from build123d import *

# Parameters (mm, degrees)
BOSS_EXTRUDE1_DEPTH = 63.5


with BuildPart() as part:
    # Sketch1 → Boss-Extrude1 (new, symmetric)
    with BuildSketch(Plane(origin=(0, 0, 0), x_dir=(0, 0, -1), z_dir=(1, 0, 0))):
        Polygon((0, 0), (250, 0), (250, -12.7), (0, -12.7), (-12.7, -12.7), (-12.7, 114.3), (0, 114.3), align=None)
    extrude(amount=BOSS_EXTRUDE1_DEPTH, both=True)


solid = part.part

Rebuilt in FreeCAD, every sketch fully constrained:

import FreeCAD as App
import Part
import Sketcher

V = App.Vector
Q = App.Units.Quantity

doc = App.newDocument("Part")
body = doc.addObject("PartDesign::Body", "Body")

sketch1 = doc.addObject("Sketcher::SketchObject", "Sketch")
body.addObject(sketch1)
sketch1.AttachmentSupport = (doc.YZ_Plane, [""])
sketch1.MapMode = "FlatFace"
sketch1.addGeometry(Part.LineSegment(V(0, -250, 0), V(0, 0, 0)), False)
sketch1.addGeometry(Part.LineSegment(V(0, 0, 0), V(114, 0, 0)), False)
sketch1.addGeometry(Part.LineSegment(V(114, 0, 0), V(114, 13, 0)), False)
sketch1.addGeometry(Part.LineSegment(V(114, 13, 0), V(-13, 13, 0)), False)
sketch1.addGeometry(Part.LineSegment(V(-13, 13, 0), V(-13, -250, 0)), False)
sketch1.addGeometry(Part.LineSegment(V(-13, -250, 0), V(0, -250, 0)), False)
sketch1.addConstraint(Sketcher.Constraint("Coincident", 0, 2, 1, 1))
sketch1.addConstraint(Sketcher.Constraint("Coincident", 1, 2, 2, 1))
sketch1.addConstraint(Sketcher.Constraint("Coincident", 2, 2, 3, 1))
sketch1.addConstraint(Sketcher.Constraint("Coincident", 3, 2, 4, 1))
sketch1.addConstraint(Sketcher.Constraint("Coincident", 4, 2, 5, 1))
sketch1.addConstraint(Sketcher.Constraint("Coincident", 5, 2, 0, 1))
sketch1.addConstraint(Sketcher.Constraint("Vertical", 0))
sketch1.addConstraint(Sketcher.Constraint("Horizontal", 1))
sketch1.addConstraint(Sketcher.Constraint("Vertical", 2))
sketch1.addConstraint(Sketcher.Constraint("Horizontal", 3))
sketch1.addConstraint(Sketcher.Constraint("Vertical", 4))
sketch1.addConstraint(Sketcher.Constraint("Horizontal", 5))
sketch1.addConstraint(Sketcher.Constraint("Coincident", 0, 2, -1, 1))
sketch1.addConstraint(Sketcher.Constraint("Equal", 5, 2))
sketch1.addConstraint(Sketcher.Constraint("DistanceX", 3, 2, 3, 1, Q("5 in")))
sketch1.addConstraint(Sketcher.Constraint("DistanceX", 1, 1, 1, 2, Q("4.5 in")))
sketch1.addConstraint(Sketcher.Constraint("DistanceY", 0, 1, 0, 2, 250.0))
pad1 = doc.addObject("PartDesign::Pad", "Pad")
body.addObject(pad1)
pad1.Profile = sketch1
pad1.Length = Q("5 in")
pad1.Midplane = True

doc.recompute()
